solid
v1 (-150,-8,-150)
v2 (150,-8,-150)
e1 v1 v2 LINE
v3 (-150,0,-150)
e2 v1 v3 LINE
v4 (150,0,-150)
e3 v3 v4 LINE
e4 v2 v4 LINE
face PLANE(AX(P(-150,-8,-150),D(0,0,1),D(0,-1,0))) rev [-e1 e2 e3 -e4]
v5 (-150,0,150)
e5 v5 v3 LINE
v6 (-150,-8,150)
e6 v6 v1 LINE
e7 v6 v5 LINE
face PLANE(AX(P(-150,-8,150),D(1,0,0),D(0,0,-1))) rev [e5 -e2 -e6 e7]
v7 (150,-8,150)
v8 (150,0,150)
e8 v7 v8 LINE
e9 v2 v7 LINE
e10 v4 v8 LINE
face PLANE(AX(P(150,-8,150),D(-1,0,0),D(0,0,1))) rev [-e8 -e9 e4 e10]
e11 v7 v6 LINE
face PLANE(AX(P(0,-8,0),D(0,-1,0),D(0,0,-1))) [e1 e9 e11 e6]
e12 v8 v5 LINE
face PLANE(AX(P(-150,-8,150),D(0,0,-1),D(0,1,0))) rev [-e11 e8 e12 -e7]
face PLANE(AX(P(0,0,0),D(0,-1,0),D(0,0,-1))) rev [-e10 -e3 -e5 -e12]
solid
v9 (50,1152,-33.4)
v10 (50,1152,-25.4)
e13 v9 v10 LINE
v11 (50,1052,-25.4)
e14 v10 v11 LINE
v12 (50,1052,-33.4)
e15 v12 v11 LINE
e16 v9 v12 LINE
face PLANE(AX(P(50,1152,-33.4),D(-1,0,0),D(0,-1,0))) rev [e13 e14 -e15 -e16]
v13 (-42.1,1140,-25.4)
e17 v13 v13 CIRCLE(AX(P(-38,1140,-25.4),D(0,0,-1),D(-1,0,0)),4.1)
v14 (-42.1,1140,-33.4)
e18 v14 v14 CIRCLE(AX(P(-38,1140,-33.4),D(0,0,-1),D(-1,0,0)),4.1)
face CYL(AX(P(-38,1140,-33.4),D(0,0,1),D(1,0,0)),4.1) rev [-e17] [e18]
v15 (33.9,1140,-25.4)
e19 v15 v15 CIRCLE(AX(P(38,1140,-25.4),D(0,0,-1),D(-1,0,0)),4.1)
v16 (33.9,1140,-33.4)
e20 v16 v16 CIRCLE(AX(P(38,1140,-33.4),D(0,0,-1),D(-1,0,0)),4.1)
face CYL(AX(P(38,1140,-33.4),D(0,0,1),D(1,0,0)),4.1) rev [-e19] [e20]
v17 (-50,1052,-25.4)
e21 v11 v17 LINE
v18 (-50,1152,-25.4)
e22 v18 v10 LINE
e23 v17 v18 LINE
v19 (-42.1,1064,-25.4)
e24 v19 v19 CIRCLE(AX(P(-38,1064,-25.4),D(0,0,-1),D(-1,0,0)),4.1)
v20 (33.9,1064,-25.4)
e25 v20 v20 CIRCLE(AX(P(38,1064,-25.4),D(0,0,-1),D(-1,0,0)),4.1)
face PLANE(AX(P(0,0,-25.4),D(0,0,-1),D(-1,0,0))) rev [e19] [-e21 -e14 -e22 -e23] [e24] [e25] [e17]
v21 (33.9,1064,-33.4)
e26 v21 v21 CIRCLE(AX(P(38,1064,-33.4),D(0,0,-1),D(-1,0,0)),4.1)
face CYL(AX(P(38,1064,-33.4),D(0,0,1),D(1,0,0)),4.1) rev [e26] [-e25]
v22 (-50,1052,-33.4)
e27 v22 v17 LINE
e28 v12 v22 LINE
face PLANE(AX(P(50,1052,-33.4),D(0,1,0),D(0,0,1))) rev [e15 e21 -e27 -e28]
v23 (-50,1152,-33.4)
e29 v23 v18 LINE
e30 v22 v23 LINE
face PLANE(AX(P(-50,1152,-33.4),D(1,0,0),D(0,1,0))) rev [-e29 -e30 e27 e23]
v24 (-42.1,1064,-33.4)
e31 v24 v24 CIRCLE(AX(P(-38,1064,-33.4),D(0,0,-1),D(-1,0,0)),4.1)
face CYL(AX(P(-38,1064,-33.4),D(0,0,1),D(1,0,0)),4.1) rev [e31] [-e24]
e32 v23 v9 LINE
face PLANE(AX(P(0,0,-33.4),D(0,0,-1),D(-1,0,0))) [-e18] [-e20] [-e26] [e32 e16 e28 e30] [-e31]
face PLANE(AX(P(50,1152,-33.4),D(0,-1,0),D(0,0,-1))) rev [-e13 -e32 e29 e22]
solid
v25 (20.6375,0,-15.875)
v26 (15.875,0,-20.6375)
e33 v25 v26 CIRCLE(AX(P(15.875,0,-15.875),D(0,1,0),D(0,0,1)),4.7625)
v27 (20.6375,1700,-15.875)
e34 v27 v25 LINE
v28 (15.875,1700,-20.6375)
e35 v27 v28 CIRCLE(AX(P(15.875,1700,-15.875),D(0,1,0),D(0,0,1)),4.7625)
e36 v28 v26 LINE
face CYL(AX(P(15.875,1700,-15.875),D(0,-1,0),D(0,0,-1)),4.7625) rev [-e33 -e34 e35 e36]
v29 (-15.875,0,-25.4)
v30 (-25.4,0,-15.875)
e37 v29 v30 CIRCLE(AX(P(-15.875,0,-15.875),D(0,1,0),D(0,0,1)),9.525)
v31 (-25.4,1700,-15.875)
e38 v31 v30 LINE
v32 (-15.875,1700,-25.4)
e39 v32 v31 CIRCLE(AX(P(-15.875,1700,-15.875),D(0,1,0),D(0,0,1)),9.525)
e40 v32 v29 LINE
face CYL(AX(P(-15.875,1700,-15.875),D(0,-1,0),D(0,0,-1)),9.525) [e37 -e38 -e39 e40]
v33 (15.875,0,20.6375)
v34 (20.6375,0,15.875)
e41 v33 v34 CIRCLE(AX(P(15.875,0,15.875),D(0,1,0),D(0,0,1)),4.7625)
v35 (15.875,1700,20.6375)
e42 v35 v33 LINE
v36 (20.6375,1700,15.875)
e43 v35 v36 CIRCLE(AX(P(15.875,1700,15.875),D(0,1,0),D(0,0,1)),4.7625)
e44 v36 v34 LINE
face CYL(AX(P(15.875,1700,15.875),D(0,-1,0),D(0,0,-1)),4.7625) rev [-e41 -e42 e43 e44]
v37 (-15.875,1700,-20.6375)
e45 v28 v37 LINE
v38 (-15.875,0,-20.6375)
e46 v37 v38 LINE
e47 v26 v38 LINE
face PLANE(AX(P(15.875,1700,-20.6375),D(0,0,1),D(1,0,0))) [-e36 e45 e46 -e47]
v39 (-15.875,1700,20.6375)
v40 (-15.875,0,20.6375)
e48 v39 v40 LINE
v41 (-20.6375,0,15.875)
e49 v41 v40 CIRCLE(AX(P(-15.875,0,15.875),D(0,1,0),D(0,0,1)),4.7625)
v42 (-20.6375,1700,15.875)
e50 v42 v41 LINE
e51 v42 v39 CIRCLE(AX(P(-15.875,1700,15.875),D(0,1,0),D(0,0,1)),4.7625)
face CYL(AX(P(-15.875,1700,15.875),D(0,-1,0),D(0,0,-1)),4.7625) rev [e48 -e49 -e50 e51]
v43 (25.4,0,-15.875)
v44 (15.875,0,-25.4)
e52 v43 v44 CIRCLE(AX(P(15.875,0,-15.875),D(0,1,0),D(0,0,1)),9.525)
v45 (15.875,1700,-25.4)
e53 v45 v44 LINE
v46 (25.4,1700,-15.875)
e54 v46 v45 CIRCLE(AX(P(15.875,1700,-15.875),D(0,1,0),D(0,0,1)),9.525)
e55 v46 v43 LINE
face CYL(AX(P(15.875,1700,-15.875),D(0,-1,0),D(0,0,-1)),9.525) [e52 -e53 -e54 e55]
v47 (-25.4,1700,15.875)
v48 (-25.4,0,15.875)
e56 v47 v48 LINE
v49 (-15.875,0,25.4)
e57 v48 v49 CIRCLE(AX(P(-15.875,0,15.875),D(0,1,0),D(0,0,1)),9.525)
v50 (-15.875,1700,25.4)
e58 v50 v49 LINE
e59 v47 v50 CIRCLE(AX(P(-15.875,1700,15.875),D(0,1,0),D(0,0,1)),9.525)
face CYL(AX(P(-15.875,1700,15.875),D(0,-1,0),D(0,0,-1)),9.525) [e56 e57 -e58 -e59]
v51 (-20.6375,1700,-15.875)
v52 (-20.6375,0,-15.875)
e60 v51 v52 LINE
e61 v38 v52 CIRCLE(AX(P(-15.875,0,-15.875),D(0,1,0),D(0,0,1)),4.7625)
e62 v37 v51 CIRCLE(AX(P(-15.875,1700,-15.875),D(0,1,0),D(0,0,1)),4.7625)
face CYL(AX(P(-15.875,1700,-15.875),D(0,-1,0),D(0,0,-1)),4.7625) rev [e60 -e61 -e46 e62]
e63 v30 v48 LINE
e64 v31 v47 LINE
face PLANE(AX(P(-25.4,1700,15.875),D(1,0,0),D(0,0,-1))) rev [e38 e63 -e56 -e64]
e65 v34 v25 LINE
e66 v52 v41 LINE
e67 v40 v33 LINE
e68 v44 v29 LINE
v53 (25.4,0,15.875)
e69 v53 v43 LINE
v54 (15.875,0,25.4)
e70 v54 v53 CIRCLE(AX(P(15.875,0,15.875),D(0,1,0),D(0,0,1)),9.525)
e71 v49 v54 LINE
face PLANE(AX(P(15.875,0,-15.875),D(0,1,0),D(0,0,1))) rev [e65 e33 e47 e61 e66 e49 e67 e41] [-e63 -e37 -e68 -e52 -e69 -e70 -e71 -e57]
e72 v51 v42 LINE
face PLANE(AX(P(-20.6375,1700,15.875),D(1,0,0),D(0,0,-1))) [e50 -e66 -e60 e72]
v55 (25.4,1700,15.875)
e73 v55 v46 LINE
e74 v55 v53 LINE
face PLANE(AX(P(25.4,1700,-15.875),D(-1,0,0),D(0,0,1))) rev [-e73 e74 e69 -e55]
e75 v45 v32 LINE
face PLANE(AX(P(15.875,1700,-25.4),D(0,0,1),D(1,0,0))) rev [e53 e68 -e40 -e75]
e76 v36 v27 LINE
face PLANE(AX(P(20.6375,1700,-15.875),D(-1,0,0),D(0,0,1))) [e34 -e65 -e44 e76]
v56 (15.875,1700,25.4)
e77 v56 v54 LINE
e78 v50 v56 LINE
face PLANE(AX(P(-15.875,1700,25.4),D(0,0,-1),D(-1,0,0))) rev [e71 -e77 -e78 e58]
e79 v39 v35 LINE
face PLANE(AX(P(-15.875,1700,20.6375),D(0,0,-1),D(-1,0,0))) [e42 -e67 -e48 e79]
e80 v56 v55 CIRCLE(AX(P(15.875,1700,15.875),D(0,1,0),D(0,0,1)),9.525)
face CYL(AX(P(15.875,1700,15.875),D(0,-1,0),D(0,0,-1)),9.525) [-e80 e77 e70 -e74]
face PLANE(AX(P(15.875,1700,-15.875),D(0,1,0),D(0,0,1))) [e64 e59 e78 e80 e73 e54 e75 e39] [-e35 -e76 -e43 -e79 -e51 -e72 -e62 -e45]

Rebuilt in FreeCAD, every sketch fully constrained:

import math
import FreeCAD as App
import Part
import Sketcher
from FreeCAD import Vector

doc = App.newDocument("Part")
body = doc.addObject("PartDesign::Body", "Body")

sketch1 = body.newObject("Sketcher::SketchObject", "Sketch")
sketch1.AttachmentSupport = (doc.getObject("XZ_Plane"), [""])
sketch1.MapMode = "FlatFace"
sketch1.addGeometry([
    Part.LineSegment(Vector(-15.9, 25.4, 0), Vector(15.9, 25.4, 0)),
    Part.ArcOfCircle(Part.Circle(Vector(15.9, 15.9, 0), Vector(0, 0, 1), 9.5), math.radians(0), math.radians(90)),
    Part.LineSegment(Vector(25.4, 15.9, 0), Vector(25.4, -15.9, 0)),
    Part.ArcOfCircle(Part.Circle(Vector(15.9, -15.9, 0), Vector(0, 0, 1), 9.5), math.radians(-90), math.radians(0)),
    Part.LineSegment(Vector(15.9, -25.4, 0), Vector(-15.9, -25.4, 0)),
    Part.ArcOfCircle(Part.Circle(Vector(-15.9, -15.9, 0), Vector(0, 0, 1), 9.5), math.radians(180), math.radians(270)),
    Part.LineSegment(Vector(-25.4, -15.9, 0), Vector(-25.4, 15.9, 0)),
    Part.ArcOfCircle(Part.Circle(Vector(-15.9, 15.9, 0), Vector(0, 0, 1), 9.5), math.radians(90), math.radians(180)),
    Part.LineSegment(Vector(15.9, 20.6, 0), Vector(-15.9, 20.6, 0)),
    Part.ArcOfCircle(Part.Circle(Vector(-15.9, 15.9, 0), Vector(0, 0, 1), 4.8), math.radians(90), math.radians(180)),
    Part.LineSegment(Vector(-20.6, 15.9, 0), Vector(-20.6, -15.9, 0)),
    Part.ArcOfCircle(Part.Circle(Vector(-15.9, -15.9, 0), Vector(0, 0, 1), 4.8), math.radians(-180), math.radians(-90)),
    Part.LineSegment(Vector(-15.9, -20.6, 0), Vector(15.9, -20.6, 0)),
    Part.ArcOfCircle(Part.Circle(Vector(15.9, -15.9, 0), Vector(0, 0, 1), 4.8), math.radians(-90), math.radians(0)),
    Part.LineSegment(Vector(20.6, -15.9, 0), Vector(20.6, 15.9, 0)),
    Part.ArcOfCircle(Part.Circle(Vector(15.9, 15.9, 0), Vector(0, 0, 1), 4.8), math.radians(0), math.radians(90)),
], False)
sketch1.addConstraint([
    Sketcher.Constraint("Tangent", 0, 2, 1, 2),
    Sketcher.Constraint("Tangent", 1, 1, 2, 1),
    Sketcher.Constraint("Tangent", 2, 2, 3, 2),
    Sketcher.Constraint("Tangent", 3, 1, 4, 1),
    Sketcher.Constraint("Tangent", 4, 2, 5, 2),
    Sketcher.Constraint("Tangent", 5, 1, 6, 1),
    Sketcher.Constraint("Tangent", 6, 2, 7, 2),
    Sketcher.Constraint("Tangent", 7, 1, 0, 1),
    Sketcher.Constraint("Tangent", 8, 2, 9, 1),
    Sketcher.Constraint("Tangent", 9, 2, 10, 1),
    Sketcher.Constraint("Tangent", 10, 2, 11, 1),
    Sketcher.Constraint("Tangent", 11, 2, 12, 1),
    Sketcher.Constraint("Tangent", 12, 2, 13, 1),
    Sketcher.Constraint("Tangent", 13, 2, 14, 1),
    Sketcher.Constraint("Tangent", 14, 2, 15, 1),
    Sketcher.Constraint("Tangent", 15, 2, 8, 1),
    Sketcher.Constraint("Horizontal", 0),
    Sketcher.Constraint("Vertical", 2),
    Sketcher.Constraint("Horizontal", 4),
    Sketcher.Constraint("Vertical", 6),
    Sketcher.Constraint("Horizontal", 8),
    Sketcher.Constraint("Vertical", 10),
    Sketcher.Constraint("Horizontal", 12),
    Sketcher.Constraint("Vertical", 14),
    Sketcher.Constraint("Coincident", 9, 3, 7, 3),
    Sketcher.Constraint("Coincident", 11, 3, 5, 3),
    Sketcher.Constraint("Coincident", 13, 3, 3, 3),
    Sketcher.Constraint("Equal", 1, 3),
    Sketcher.Constraint("Equal", 3, 5),
    Sketcher.Constraint("Equal", 5, 7),
    Sketcher.Constraint("Equal", 13, 15),
    Sketcher.Constraint("Symmetric", 1, 3, 5, 3, -1, 1),
    Sketcher.Constraint("Equal", 12, 2),
    Sketcher.Constraint("Radius", 1, 9.525),
    Sketcher.Constraint("DistanceX", 0, 1, 0, 2, 31.75),
    Sketcher.Constraint("Radius", 9, 4.7625),
])
pad1 = body.newObject("PartDesign::Pad", "Pad")
pad1.Profile = sketch1
pad1.Length = 1700
pad1.Reversed = True
body2 = doc.addObject("PartDesign::Body", "Body001")

sketch2 = body2.newObject("Sketcher::SketchObject", "Sketch001")
sketch2.AttachmentSupport = (doc.getObject("XZ_Plane001"), [""])
sketch2.MapMode = "FlatFace"
sketch2.addGeometry([
    Part.LineSegment(Vector(-150, 150, 0), Vector(-150, -150, 0)),
    Part.LineSegment(Vector(-150, -150, 0), Vector(150, -150, 0)),
    Part.LineSegment(Vector(150, -150, 0), Vector(150, 150, 0)),
    Part.LineSegment(Vector(150, 150, 0), Vector(-150, 150, 0)),
], False)
sketch2.addConstraint([
    Sketcher.Constraint("Coincident", 0, 2, 1, 1),
    Sketcher.Constraint("Coincident", 1, 2, 2, 1),
    Sketcher.Constraint("Coincident", 2, 2, 3, 1),
    Sketcher.Constraint("Coincident", 3, 2, 0, 1),
    Sketcher.Constraint("Vertical", 0),
    Sketcher.Constraint("Horizontal", 1),
    Sketcher.Constraint("Vertical", 2),
    Sketcher.Constraint("Horizontal", 3),
    Sketcher.Constraint("Symmetric", 0, 2, 2, 2, -1, 1),
    Sketcher.Constraint("Equal", 3, 0),
    Sketcher.Constraint("DistanceX", 1, 1, 1, 2, 300.0),
])
pad2 = body2.newObject("PartDesign::Pad", "Pad001")
pad2.Profile = sketch2
pad2.Length = 8
body3 = doc.addObject("PartDesign::Body", "Body002")

sketch3 = body3.newObject("Sketcher::SketchObject", "Sketch002")
sketch3.AttachmentSupport = (doc.getObject("XY_Plane002"), [""])
sketch3.MapMode = "FlatFace"
sketch3.AttachmentOffset = App.Placement(Vector(0, 0, -25.4), App.Rotation())
sketch3.addGeometry([
    Part.LineSegment(Vector(50, 1152, 0), Vector(50, 1052, 0)),
    Part.LineSegment(Vector(50, 1052, 0), Vector(-50, 1052, 0)),
    Part.LineSegment(Vector(-50, 1052, 0), Vector(-50, 1152, 0)),
    Part.LineSegment(Vector(-50, 1152, 0), Vector(50, 1152, 0)),
    Part.Circle(Vector(38, 1064, 0), Vector(0, 0, 1), 4.1),
    Part.Circle(Vector(-38, 1064, 0), Vector(0, 0, 1), 4.1),
    Part.Circle(Vector(38, 1140, 0), Vector(0, 0, 1), 4.1),
    Part.Circle(Vector(-38, 1140, 0), Vector(0, 0, 1), 4.1),
], False)
sketch3.addConstraint([
    Sketcher.Constraint("Coincident", 0, 2, 1, 1),
    Sketcher.Constraint("Coincident", 1, 2, 2, 1),
    Sketcher.Constraint("Coincident", 2, 2, 3, 1),
    Sketcher.Constraint("Coincident", 3, 2, 0, 1),
    Sketcher.Constraint("Vertical", 0),
    Sketcher.Constraint("Horizontal", 1),
    Sketcher.Constraint("Vertical", 2),
    Sketcher.Constraint("Horizontal", 3),
    Sketcher.Constraint("Equal", 4, 5),
    Sketcher.Constraint("Equal", 5, 6),
    Sketcher.Constraint("Equal", 6, 7),
    Sketcher.Constraint("Symmetric", 4, 3, 5, 3, -2),
    Sketcher.Constraint("Symmetric", 6, 3, 7, 3, -2),
    Sketcher.Constraint("Vertical", 4, 3, 6, 3),
    Sketcher.Constraint("Equal", 3, 0),
    Sketcher.Constraint("Diameter", 4, 8.2),
    Sketcher.Constraint("DistanceX", 1, 2, 1, 1, 100.0),
    Sketcher.Constraint("DistanceX", -1, 1, 4, 3, 38.0),
    Sketcher.Constraint("DistanceY", -1, 1, 4, 3, 1064.0),
    Sketcher.Constraint("DistanceY", -1, 1, 6, 3, 1140.0),
    Sketcher.Constraint("DistanceX", -1, 1, 0, 2, 50.0),
    Sketcher.Constraint("DistanceY", -1, 1, 0, 2, 1052.0),
])
pad3 = body3.newObject("PartDesign::Pad", "Pad002")
pad3.Profile = sketch3
pad3.Length = 8
pad3.Reversed = True

doc.recompute()
